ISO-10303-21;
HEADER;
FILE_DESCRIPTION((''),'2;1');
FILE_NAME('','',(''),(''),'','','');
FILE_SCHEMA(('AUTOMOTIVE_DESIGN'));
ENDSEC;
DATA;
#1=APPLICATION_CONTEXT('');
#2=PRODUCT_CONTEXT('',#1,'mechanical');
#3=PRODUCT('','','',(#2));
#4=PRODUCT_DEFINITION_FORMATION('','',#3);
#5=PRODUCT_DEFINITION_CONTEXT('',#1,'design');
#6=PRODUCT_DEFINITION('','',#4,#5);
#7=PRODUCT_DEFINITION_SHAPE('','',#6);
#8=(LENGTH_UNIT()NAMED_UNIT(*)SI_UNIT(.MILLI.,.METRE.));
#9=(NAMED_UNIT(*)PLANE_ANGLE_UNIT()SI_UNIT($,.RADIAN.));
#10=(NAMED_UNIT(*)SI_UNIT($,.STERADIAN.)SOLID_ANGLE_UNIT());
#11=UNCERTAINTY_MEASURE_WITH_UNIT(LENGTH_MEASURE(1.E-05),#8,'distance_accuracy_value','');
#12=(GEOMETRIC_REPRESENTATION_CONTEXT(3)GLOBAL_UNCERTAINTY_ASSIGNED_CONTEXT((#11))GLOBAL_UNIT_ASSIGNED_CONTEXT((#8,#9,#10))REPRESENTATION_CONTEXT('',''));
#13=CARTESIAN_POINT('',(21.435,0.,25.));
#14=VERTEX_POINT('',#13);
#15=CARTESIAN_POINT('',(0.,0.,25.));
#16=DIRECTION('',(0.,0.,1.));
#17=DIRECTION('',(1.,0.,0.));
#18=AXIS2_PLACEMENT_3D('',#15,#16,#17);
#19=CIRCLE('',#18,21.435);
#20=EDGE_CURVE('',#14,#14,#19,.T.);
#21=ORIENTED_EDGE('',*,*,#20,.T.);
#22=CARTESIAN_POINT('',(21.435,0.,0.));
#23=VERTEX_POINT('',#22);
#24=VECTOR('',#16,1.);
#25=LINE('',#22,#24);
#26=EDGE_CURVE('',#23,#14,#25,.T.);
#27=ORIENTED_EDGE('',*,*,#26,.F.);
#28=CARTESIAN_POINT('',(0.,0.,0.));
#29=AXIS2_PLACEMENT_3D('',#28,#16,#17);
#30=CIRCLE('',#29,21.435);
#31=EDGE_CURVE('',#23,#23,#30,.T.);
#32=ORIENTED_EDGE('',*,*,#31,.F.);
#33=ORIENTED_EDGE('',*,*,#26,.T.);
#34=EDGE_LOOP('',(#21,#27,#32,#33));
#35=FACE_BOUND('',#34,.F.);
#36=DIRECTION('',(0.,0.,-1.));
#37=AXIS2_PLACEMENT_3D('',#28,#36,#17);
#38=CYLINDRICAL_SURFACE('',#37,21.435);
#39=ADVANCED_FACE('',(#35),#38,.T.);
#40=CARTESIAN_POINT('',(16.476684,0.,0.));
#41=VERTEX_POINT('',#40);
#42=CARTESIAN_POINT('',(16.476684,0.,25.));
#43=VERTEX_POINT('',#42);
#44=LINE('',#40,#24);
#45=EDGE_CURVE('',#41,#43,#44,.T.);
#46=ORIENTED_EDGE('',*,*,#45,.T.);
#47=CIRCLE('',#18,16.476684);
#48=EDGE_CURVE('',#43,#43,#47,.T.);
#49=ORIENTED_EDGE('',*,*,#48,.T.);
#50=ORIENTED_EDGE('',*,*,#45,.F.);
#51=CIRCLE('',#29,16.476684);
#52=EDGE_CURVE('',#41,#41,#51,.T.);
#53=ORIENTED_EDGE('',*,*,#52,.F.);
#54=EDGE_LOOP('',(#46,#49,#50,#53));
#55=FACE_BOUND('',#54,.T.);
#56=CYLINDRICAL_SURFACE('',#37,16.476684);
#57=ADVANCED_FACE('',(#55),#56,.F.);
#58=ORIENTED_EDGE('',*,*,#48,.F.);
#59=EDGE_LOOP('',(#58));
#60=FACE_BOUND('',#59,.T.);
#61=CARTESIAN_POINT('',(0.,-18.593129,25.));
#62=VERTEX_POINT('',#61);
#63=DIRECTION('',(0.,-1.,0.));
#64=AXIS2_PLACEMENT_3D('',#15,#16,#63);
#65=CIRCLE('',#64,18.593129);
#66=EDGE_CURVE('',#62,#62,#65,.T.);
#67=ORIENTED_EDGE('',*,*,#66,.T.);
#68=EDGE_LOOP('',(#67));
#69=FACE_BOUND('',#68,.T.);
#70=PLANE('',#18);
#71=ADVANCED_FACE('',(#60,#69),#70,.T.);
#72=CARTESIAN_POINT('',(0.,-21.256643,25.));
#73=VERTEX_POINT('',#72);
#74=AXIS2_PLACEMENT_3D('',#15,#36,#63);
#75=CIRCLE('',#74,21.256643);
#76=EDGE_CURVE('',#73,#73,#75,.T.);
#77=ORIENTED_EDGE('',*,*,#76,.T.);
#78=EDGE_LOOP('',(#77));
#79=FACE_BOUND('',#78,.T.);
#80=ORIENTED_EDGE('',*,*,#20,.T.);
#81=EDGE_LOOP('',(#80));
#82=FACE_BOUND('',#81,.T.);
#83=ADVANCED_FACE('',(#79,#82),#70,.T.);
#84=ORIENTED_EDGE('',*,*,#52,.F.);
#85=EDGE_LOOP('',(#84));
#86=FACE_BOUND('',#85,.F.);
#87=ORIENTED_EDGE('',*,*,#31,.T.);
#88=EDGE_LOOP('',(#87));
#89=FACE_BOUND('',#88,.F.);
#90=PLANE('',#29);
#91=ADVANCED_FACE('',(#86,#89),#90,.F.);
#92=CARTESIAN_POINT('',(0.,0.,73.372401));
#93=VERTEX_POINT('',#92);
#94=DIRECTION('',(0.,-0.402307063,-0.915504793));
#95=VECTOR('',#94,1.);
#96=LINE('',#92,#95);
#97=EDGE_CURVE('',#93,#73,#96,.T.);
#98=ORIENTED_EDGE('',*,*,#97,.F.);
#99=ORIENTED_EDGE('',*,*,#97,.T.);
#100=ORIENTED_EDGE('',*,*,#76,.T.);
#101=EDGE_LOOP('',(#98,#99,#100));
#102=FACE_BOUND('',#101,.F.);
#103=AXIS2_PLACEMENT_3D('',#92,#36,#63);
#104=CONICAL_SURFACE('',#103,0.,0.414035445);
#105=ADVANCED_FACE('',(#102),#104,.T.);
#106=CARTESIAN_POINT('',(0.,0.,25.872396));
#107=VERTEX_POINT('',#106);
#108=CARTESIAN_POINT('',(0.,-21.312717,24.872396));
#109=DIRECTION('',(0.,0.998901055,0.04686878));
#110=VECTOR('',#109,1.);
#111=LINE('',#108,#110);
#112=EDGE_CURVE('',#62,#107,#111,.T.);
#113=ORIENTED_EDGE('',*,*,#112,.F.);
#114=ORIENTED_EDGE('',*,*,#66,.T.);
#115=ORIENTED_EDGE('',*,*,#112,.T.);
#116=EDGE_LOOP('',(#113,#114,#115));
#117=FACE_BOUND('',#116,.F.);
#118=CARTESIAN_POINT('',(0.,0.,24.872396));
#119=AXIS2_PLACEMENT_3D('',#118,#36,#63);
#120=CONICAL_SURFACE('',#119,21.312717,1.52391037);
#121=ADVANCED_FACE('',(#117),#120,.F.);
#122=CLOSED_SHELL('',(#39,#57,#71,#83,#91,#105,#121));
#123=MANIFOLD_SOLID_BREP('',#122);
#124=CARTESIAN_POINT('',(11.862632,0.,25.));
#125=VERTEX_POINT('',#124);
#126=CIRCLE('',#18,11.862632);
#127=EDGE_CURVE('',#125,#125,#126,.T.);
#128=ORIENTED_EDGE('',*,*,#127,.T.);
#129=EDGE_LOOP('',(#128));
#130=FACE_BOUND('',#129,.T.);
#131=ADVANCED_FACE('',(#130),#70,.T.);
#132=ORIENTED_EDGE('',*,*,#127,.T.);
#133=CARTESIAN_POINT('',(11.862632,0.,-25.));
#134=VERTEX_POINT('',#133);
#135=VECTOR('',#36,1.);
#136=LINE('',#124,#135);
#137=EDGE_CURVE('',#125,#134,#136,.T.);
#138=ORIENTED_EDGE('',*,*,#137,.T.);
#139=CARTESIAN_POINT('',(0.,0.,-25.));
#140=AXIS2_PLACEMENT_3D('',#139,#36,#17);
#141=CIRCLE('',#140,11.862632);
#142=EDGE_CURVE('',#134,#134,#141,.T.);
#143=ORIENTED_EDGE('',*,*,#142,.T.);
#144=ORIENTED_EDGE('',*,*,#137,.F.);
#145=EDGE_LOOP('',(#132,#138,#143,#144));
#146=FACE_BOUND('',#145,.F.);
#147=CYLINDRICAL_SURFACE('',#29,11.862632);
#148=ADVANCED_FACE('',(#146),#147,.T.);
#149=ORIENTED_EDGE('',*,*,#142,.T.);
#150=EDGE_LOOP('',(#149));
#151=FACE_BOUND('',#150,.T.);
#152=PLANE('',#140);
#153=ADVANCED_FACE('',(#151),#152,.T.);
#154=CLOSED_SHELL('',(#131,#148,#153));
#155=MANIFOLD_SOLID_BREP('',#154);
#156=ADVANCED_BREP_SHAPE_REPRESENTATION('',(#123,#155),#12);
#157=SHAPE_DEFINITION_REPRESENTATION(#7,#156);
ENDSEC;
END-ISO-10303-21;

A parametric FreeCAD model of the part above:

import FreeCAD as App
import Part
import Sketcher

V = App.Vector
Q = App.Units.Quantity

doc = App.newDocument("Part")
params = doc.addObject("Spreadsheet::Sheet", "Params")
for row, (alias, value) in enumerate([
    ("sketch1_diameter", "38.7 mm"),
    ("sketch1_diameter2", "42.87 mm"),
    ("pad1_length", "25 mm"),
    ("revolution_angle", "360 deg"),
    ("sketch3_diameter", "38.7 mm"),
    ("pad2_length", "25 mm"),
    ("pad3_length", "25 mm"),
    ("pad4_length", "25 mm"),
], start=1):
    params.set(f"A{row}", alias)
    params.set(f"B{row}", "=" + value)
    params.setAlias(f"B{row}", alias)

body = doc.addObject("PartDesign::Body", "Body")

# Sketch on XY plane
sketch1 = body.newObject("Sketcher::SketchObject", "Sketch")
sketch1.AttachmentSupport = (doc.getObject("XY_Plane"), [""])
sketch1.MapMode = "FlatFace"
sketch1.addGeometry(Part.Circle(V(0, 0, 0), V(0, 0, 1), 21), False)
sketch1.addGeometry(Part.Circle(V(0, 0, 0), V(0, 0, 1), 19), False)
sketch1.addConstraint(Sketcher.Constraint("Coincident", 0, 3, -1, 1))
sketch1.addConstraint(Sketcher.Constraint("Coincident", 1, 3, -1, 1))
sketch1.addConstraint(Sketcher.Constraint("Diameter", 1, Q("38.7 mm")))
sketch1.addConstraint(Sketcher.Constraint("Diameter", 0, Q("42.87 mm")))
sketch1.setExpression("Constraints[2]", "Params.sketch1_diameter")
sketch1.setExpression("Constraints[3]", "Params.sketch1_diameter2")
pad1 = body.newObject("PartDesign::Pad", "Pad")
pad1.Profile = sketch1
pad1.setExpression("Length", "Params.pad1_length")

# Sketch on YZ plane
sketch2 = body.newObject("Sketcher::SketchObject", "Sketch001")
sketch2.AttachmentSupport = (doc.getObject("YZ_Plane"), [""])
sketch2.MapMode = "FlatFace"
sketch2.addGeometry(Part.LineSegment(V(0, 73, 0), V(-21, 25, 0)), False)
sketch2.addGeometry(Part.LineSegment(V(-21, 25, 0), V(0, 26, 0)), False)
sketch2.addGeometry(Part.LineSegment(V(0, 26, 0), V(0, 73, 0)), False)
sketch2.addConstraint(Sketcher.Constraint("Coincident", 0, 2, 1, 1))
sketch2.addConstraint(Sketcher.Constraint("Coincident", 1, 2, 2, 1))
sketch2.addConstraint(Sketcher.Constraint("Coincident", 2, 2, 0, 1))
sketch2.addConstraint(Sketcher.Constraint("Vertical", 2))
sketch2.addConstraint(Sketcher.Constraint("PointOnObject", 1, 2, -2))
sketch2.addConstraint(Sketcher.Constraint("DistanceY", 0, 2, 1, 2, Q("1 mm")))
sketch2.addConstraint(Sketcher.Constraint("DistanceY", -1, 1, 2, 2, Q("73.372401 mm")))
sketch2.addConstraint(Sketcher.Constraint("DistanceY", 2, 1, 2, 2, Q("47.500005 mm")))
sketch2.addConstraint(Sketcher.Constraint("Distance", 0, Q("52.976244 mm")))
revolution = body.newObject("PartDesign::Revolution", "Revolution")
revolution.Profile = sketch2
revolution.ReferenceAxis = (sketch2, ["V_Axis"])
revolution.setExpression("Angle", "Params.revolution_angle")

# Sketch on XY plane
sketch3 = body.newObject("Sketcher::SketchObject", "Sketch002")
sketch3.AttachmentSupport = (doc.getObject("XY_Plane"), [""])
sketch3.MapMode = "FlatFace"
sketch3.addGeometry(Part.Circle(V(0, 0, 0), V(0, 0, 1), 19), False)
sketch3.addGeometry(Part.Circle(V(0, 0, 0), V(0, 0, 1), 16), False)
sketch3.addConstraint(Sketcher.Constraint("Coincident", 0, 3, -1, 1))
sketch3.addConstraint(Sketcher.Constraint("Coincident", 1, 3, -1, 1))
sketch3.addConstraint(Sketcher.Constraint("Diameter", 0, Q("38.7 mm")))
sketch3.addConstraint(Sketcher.Constraint("Diameter", 1, Q("32.953368 mm")))
sketch3.setExpression("Constraints[2]", "Params.sketch3_diameter")
pad2 = body.newObject("PartDesign::Pad", "Pad001")
pad2.Profile = sketch3
pad2.setExpression("Length", "Params.pad2_length")
body2 = doc.addObject("PartDesign::Body", "Body001")

# Sketch on XY plane
sketch4 = body2.newObject("Sketcher::SketchObject", "Sketch003")
sketch4.AttachmentSupport = (doc.getObject("XY_Plane001"), [""])
sketch4.MapMode = "FlatFace"
sketch4.addGeometry(Part.Circle(V(0, 0, 0), V(0, 0, 1), 12), False)
sketch4.addConstraint(Sketcher.Constraint("Coincident", 0, 3, -1, 1))
sketch4.addConstraint(Sketcher.Constraint("Diameter", 0, Q("23.725264 mm")))
pad3 = body2.newObject("PartDesign::Pad", "Pad002")
pad3.Profile = sketch4
pad3.setExpression("Length", "Params.pad3_length")

# Sketch on XY plane
sketch5 = body2.newObject("Sketcher::SketchObject", "Sketch004")
sketch5.AttachmentSupport = (doc.getObject("XY_Plane001"), [""])
sketch5.MapMode = "FlatFace"
sketch5.addGeometry(Part.Circle(V(0, 0, 0), V(0, 0, 1), 12), False)
sketch5.addConstraint(Sketcher.Constraint("Coincident", 0, 3, -1, 1))
sketch5.addConstraint(Sketcher.Constraint("Diameter", 0, Q("23.725264 mm")))
pad4 = body2.newObject("PartDesign::Pad", "Pad003")
pad4.Profile = sketch5
pad4.setExpression("Length", "Params.pad4_length")
pad4.Reversed = True

doc.recompute()
